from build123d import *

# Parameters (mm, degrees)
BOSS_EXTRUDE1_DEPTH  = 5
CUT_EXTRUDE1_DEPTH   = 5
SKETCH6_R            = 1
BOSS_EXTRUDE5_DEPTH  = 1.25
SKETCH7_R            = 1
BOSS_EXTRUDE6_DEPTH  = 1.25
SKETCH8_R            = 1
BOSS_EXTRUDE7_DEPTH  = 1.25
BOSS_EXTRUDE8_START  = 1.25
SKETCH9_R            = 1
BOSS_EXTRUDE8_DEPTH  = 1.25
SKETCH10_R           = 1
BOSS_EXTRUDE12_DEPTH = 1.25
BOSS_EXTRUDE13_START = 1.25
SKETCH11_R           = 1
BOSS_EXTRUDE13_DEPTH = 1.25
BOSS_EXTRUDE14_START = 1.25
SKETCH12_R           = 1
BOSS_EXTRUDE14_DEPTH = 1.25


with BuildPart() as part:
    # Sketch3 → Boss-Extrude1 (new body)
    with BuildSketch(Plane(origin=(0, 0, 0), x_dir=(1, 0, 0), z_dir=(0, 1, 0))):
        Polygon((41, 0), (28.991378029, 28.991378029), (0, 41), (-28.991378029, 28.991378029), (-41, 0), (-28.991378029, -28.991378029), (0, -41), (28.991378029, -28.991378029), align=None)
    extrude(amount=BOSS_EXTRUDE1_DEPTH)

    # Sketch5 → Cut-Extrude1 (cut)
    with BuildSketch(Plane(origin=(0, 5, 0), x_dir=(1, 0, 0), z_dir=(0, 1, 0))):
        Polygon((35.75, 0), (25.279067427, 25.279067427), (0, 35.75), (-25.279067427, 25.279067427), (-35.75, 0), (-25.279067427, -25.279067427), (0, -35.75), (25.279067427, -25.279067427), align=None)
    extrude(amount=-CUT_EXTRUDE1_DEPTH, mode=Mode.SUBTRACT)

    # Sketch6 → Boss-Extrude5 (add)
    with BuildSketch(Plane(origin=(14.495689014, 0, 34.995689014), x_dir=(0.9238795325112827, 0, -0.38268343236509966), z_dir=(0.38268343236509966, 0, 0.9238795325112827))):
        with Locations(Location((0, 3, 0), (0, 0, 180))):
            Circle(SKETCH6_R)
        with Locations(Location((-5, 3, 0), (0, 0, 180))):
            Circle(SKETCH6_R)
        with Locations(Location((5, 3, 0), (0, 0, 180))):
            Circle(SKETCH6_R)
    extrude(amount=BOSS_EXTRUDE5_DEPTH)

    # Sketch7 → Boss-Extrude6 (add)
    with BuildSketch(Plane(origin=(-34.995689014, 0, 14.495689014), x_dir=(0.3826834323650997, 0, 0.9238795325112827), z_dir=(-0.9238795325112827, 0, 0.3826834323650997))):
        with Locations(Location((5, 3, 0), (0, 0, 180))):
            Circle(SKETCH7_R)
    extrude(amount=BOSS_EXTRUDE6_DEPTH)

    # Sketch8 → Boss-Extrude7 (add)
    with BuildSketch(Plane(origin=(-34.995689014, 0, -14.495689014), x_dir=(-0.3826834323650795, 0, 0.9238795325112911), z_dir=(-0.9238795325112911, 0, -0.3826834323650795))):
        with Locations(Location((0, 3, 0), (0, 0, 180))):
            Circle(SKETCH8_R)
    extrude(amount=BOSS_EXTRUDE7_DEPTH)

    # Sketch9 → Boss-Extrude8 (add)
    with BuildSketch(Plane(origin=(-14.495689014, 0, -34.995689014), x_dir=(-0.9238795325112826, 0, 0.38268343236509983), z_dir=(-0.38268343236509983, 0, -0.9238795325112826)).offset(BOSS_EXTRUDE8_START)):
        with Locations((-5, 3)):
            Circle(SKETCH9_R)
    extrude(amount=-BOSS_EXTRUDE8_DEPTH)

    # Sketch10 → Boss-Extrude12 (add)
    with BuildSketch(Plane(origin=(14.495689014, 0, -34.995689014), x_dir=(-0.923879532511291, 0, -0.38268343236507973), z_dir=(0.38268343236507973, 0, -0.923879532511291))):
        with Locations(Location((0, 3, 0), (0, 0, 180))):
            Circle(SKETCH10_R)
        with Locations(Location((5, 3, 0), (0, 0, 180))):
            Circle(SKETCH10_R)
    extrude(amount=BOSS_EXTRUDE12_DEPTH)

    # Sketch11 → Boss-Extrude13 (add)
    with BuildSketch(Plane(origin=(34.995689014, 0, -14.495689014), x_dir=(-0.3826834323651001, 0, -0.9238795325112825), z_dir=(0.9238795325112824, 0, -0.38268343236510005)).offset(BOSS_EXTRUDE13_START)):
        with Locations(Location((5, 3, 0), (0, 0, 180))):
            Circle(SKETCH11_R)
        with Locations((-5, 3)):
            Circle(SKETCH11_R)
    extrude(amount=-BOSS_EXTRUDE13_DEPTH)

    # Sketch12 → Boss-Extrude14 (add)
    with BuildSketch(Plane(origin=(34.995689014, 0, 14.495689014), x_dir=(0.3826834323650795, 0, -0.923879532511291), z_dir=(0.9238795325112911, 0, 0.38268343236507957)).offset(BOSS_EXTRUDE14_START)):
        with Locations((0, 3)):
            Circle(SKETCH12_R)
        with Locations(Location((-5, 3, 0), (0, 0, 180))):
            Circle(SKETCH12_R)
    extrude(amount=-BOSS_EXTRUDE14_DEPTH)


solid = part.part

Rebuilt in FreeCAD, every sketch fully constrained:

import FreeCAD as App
import Part
import Sketcher
from FreeCAD import Vector
Q = App.Units.Quantity

doc = App.newDocument("Part")
body = doc.addObject("PartDesign::Body", "Body")

sketch1 = doc.addObject("Sketcher::SketchObject", "Sketch")
body.addObject(sketch1)
sketch1.AttachmentSupport = (doc.XZ_Plane, [""])
sketch1.MapMode = "FlatFace"
sketch1.addGeometry([
    Part.LineSegment(Vector(41, 0, 0), Vector(29, -29, 0)),
    Part.LineSegment(Vector(29, -29, 0), Vector(0, -41, 0)),
    Part.LineSegment(Vector(0, -41, 0), Vector(-29, -29, 0)),
    Part.LineSegment(Vector(-29, -29, 0), Vector(-41, 0, 0)),
    Part.LineSegment(Vector(-41, 0, 0), Vector(-29, 29, 0)),
    Part.LineSegment(Vector(-29, 29, 0), Vector(0, 41, 0)),
    Part.LineSegment(Vector(0, 41, 0), Vector(29, 29, 0)),
    Part.LineSegment(Vector(29, 29, 0), Vector(41, 0, 0)),
], False)
sketch1.addConstraint([
    Sketcher.Constraint("Coincident", 0, 2, 1, 1),
    Sketcher.Constraint("Coincident", 1, 2, 2, 1),
    Sketcher.Constraint("Coincident", 2, 2, 3, 1),
    Sketcher.Constraint("Coincident", 3, 2, 4, 1),
    Sketcher.Constraint("Coincident", 4, 2, 5, 1),
    Sketcher.Constraint("Coincident", 5, 2, 6, 1),
    Sketcher.Constraint("Coincident", 6, 2, 7, 1),
    Sketcher.Constraint("Coincident", 7, 2, 0, 1),
    Sketcher.Constraint("Symmetric", 0, 2, 4, 2, -1, 1),
    Sketcher.Constraint("Symmetric", 1, 2, 5, 2, -1, 1),
    Sketcher.Constraint("Symmetric", 2, 2, 6, 2, -1, 1),
    Sketcher.Constraint("Symmetric", 3, 2, 7, 2, -1, 1),
    Sketcher.Constraint("Symmetric", 0, 2, 2, 2, -2),
    Sketcher.Constraint("PointOnObject", 1, 2, -2),
    Sketcher.Constraint("PointOnObject", 3, 2, -1),
    Sketcher.Constraint("Perpendicular", 0, 2),
    Sketcher.Constraint("Equal", 0, 1),
    Sketcher.Constraint("DistanceY", 1, 2, -1, 1, Q("41 mm")),
    Sketcher.Constraint("Angle", 0, Q("-112.5 deg")),
])
pad1 = doc.addObject("PartDesign::Pad", "Pad")
body.addObject(pad1)
pad1.Profile = sketch1
pad1.Length = 5
pad1.Reversed = True

sketch2 = doc.addObject("Sketcher::SketchObject", "Sketch001")
body.addObject(sketch2)
sketch2.AttachmentSupport = (doc.XZ_Plane, [""])
sketch2.MapMode = "FlatFace"
sketch2.AttachmentOffset = App.Placement(Vector(0, 0, -5), App.Rotation())
sketch2.addGeometry([
    Part.LineSegment(Vector(36, 0, 0), Vector(25, -25, 0)),
    Part.LineSegment(Vector(25, -25, 0), Vector(0, -36, 0)),
    Part.LineSegment(Vector(0, -36, 0), Vector(-25, -25, 0)),
    Part.LineSegment(Vector(-25, -25, 0), Vector(-36, 0, 0)),
    Part.LineSegment(Vector(-36, 0, 0), Vector(-25, 25, 0)),
    Part.LineSegment(Vector(-25, 25, 0), Vector(0, 36, 0)),
    Part.LineSegment(Vector(0, 36, 0), Vector(25, 25, 0)),
    Part.LineSegment(Vector(25, 25, 0), Vector(36, 0, 0)),
], False)
sketch2.addConstraint([
    Sketcher.Constraint("Coincident", 0, 2, 1, 1),
    Sketcher.Constraint("Coincident", 1, 2, 2, 1),
    Sketcher.Constraint("Coincident", 2, 2, 3, 1),
    Sketcher.Constraint("Coincident", 3, 2, 4, 1),
    Sketcher.Constraint("Coincident", 4, 2, 5, 1),
    Sketcher.Constraint("Coincident", 5, 2, 6, 1),
    Sketcher.Constraint("Coincident", 6, 2, 7, 1),
    Sketcher.Constraint("Coincident", 7, 2, 0, 1),
    Sketcher.Constraint("Symmetric", 0, 2, 4, 2, -1, 1),
    Sketcher.Constraint("Symmetric", 1, 2, 5, 2, -1, 1),
    Sketcher.Constraint("Symmetric", 2, 2, 6, 2, -1, 1),
    Sketcher.Constraint("Symmetric", 3, 2, 7, 2, -1, 1),
    Sketcher.Constraint("Symmetric", 0, 2, 2, 2, -2),
    Sketcher.Constraint("PointOnObject", 1, 2, -2),
    Sketcher.Constraint("PointOnObject", 3, 2, -1),
    Sketcher.Constraint("Perpendicular", 0, 2),
    Sketcher.Constraint("Equal", 0, 1),
    Sketcher.Constraint("Angle", 0, Q("-112.5 deg")),
    Sketcher.Constraint("DistanceY", 1, 2, 5, 2, Q("71.5 mm")),
])
pocket1 = doc.addObject("PartDesign::Pocket", "Pocket")
body.addObject(pocket1)
pocket1.Profile = sketch2
pocket1.Length = 5
pocket1.Reversed = True

sketch3 = doc.addObject("Sketcher::SketchObject", "Sketch002")
body.addObject(sketch3)
sketch3.Placement = App.Placement(Vector(14.495689, 0, 34.995689), App.Rotation(Vector(0.923879533, 0, -0.382683432), Vector(0, 1.000000001, 0), Vector(0.382683432, 0, 0.923879533), "ZXY"))
sketch3.addGeometry([
    Part.Circle(Vector(0, 3, 0), Vector(0, 0, 1), 1),
    Part.Circle(Vector(-5, 3, 0), Vector(0, 0, 1), 1),
    Part.Circle(Vector(5, 3, 0), Vector(0, 0, 1), 1),
], False)
sketch3.addConstraint([
    Sketcher.Constraint("Equal", 0, 1),
    Sketcher.Constraint("Equal", 1, 2),
    Sketcher.Constraint("Symmetric", 1, 3, 2, 3, -2),
    Sketcher.Constraint("PointOnObject", 0, 3, -2),
    Sketcher.Constraint("Horizontal", 0, 3, 1, 3),
    Sketcher.Constraint("Diameter", 0, Q("2 mm")),
    Sketcher.Constraint("DistanceY", -1, 1, 0, 3, Q("3 mm")),
    Sketcher.Constraint("DistanceX", 1, 3, -1, 1, Q("5 mm")),
])
pad2 = doc.addObject("PartDesign::Pad", "Pad001")
body.addObject(pad2)
pad2.Profile = sketch3
pad2.Length = 1.25

sketch4 = doc.addObject("Sketcher::SketchObject", "Sketch003")
body.addObject(sketch4)
sketch4.Placement = App.Placement(Vector(-34.995689, 0, 14.495689), App.Rotation(Vector(0.382683432, 0, 0.923879533), Vector(0, 1.000000001, 0), Vector(-0.923879533, 0, 0.382683432), "ZXY"))
sketch4.addGeometry(Part.Circle(Vector(5, 3, 0), Vector(0, 0, 1), 1), False)
sketch4.addConstraint([
    Sketcher.Constraint("Diameter", 0, Q("2 mm")),
    Sketcher.Constraint("DistanceX", -1, 1, 0, 3, Q("5 mm")),
    Sketcher.Constraint("DistanceY", -1, 1, 0, 3, Q("3 mm")),
])
pad3 = doc.addObject("PartDesign::Pad", "Pad002")
body.addObject(pad3)
pad3.Profile = sketch4
pad3.Length = 1.25

sketch5 = doc.addObject("Sketcher::SketchObject", "Sketch004")
body.addObject(sketch5)
sketch5.Placement = App.Placement(Vector(-34.995689, 0, -14.495689), App.Rotation(Vector(-0.382683432, 0, 0.923879533), Vector(0, 1.000000001, 0), Vector(-0.923879533, 0, -0.382683432), "ZXY"))
sketch5.addGeometry(Part.Circle(Vector(0, 3, 0), Vector(0, 0, 1), 1), False)
sketch5.addConstraint([
    Sketcher.Constraint("PointOnObject", 0, 3, -2),
    Sketcher.Constraint("Diameter", 0, Q("2 mm")),
    Sketcher.Constraint("DistanceY", -1, 1, 0, 3, Q("3 mm")),
])
pad4 = doc.addObject("PartDesign::Pad", "Pad003")
body.addObject(pad4)
pad4.Profile = sketch5
pad4.Length = 1.25

sketch6 = doc.addObject("Sketcher::SketchObject", "Sketch005")
body.addObject(sketch6)
sketch6.Placement = App.Placement(Vector(-14.974043, 0, -36.150538), App.Rotation(Vector(-0.923879533, 0, 0.382683432), Vector(0, 1.000000001, 0), Vector(-0.382683432, 0, -0.923879533), "ZXY"))
sketch6.addGeometry(Part.Circle(Vector(-5, 3, 0), Vector(0, 0, 1), 1), False)
sketch6.addConstraint([
    Sketcher.Constraint("Diameter", 0, Q("2 mm")),
    Sketcher.Constraint("DistanceX", 0, 3, -1, 1, Q("5 mm")),
    Sketcher.Constraint("DistanceY", -1, 1, 0, 3, Q("3 mm")),
])
pad5 = doc.addObject("PartDesign::Pad", "Pad004")
body.addObject(pad5)
pad5.Profile = sketch6
pad5.Length = 1.25
pad5.Reversed = True

sketch7 = doc.addObject("Sketcher::SketchObject", "Sketch006")
body.addObject(sketch7)
sketch7.Placement = App.Placement(Vector(14.495689, 0, -34.995689), App.Rotation(Vector(-0.923879533, 0, -0.382683432), Vector(0, 1.000000001, 0), Vector(0.382683432, 0, -0.923879533), "ZXY"))
sketch7.addGeometry([
    Part.Circle(Vector(0, 3, 0), Vector(0, 0, 1), 1),
    Part.Circle(Vector(5, 3, 0), Vector(0, 0, 1), 1),
], False)
sketch7.addConstraint([
    Sketcher.Constraint("Equal", 0, 1),
    Sketcher.Constraint("PointOnObject", 0, 3, -2),
    Sketcher.Constraint("Horizontal", 0, 3, 1, 3),
    Sketcher.Constraint("Diameter", 0, Q("2 mm")),
    Sketcher.Constraint("DistanceY", -1, 1, 0, 3, Q("3 mm")),
    Sketcher.Constraint("DistanceX", -1, 1, 1, 3, Q("5 mm")),
])
pad6 = doc.addObject("PartDesign::Pad", "Pad005")
body.addObject(pad6)
pad6.Profile = sketch7
pad6.Length = 1.25

sketch8 = doc.addObject("Sketcher::SketchObject", "Sketch007")
body.addObject(sketch8)
sketch8.Placement = App.Placement(Vector(36.150538, 0, -14.974043), App.Rotation(Vector(-0.382683432, 0, -0.923879533), Vector(0, 1.000000001, 0), Vector(0.923879533, 0, -0.382683432), "ZXY"))
sketch8.addGeometry([
    Part.Circle(Vector(5, 3, 0), Vector(0, 0, 1), 1),
    Part.Circle(Vector(-5, 3, 0), Vector(0, 0, 1), 1),
], False)
sketch8.addConstraint([
    Sketcher.Constraint("Equal", 0, 1),
    Sketcher.Constraint("Symmetric", 0, 3, 1, 3, -2),
    Sketcher.Constraint("Diameter", 0, Q("2 mm")),
    Sketcher.Constraint("DistanceX", -1, 1, 0, 3, Q("5 mm")),
    Sketcher.Constraint("DistanceY", -1, 1, 0, 3, Q("3 mm")),
])
pad7 = doc.addObject("PartDesign::Pad", "Pad006")
body.addObject(pad7)
pad7.Profile = sketch8
pad7.Length = 1.25
pad7.Reversed = True

sketch9 = doc.addObject("Sketcher::SketchObject", "Sketch008")
body.addObject(sketch9)
sketch9.Placement = App.Placement(Vector(36.150538, 0, 14.974043), App.Rotation(Vector(0.382683432, 0, -0.923879533), Vector(0, 1.000000001, 0), Vector(0.923879533, 0, 0.382683432), "ZXY"))
sketch9.addGeometry([
    Part.Circle(Vector(0, 3, 0), Vector(0, 0, 1), 1),
    Part.Circle(Vector(-5, 3, 0), Vector(0, 0, 1), 1),
], False)
sketch9.addConstraint([
    Sketcher.Constraint("Equal", 0, 1),
    Sketcher.Constraint("PointOnObject", 0, 3, -2),
    Sketcher.Constraint("Horizontal", 0, 3, 1, 3),
    Sketcher.Constraint("Diameter", 0, Q("2 mm")),
    Sketcher.Constraint("DistanceY", -1, 1, 0, 3, Q("3 mm")),
    Sketcher.Constraint("DistanceX", 1, 3, -1, 1, Q("5 mm")),
])
pad8 = doc.addObject("PartDesign::Pad", "Pad007")
body.addObject(pad8)
pad8.Profile = sketch9
pad8.Length = 1.25
pad8.Reversed = True

doc.recompute()
